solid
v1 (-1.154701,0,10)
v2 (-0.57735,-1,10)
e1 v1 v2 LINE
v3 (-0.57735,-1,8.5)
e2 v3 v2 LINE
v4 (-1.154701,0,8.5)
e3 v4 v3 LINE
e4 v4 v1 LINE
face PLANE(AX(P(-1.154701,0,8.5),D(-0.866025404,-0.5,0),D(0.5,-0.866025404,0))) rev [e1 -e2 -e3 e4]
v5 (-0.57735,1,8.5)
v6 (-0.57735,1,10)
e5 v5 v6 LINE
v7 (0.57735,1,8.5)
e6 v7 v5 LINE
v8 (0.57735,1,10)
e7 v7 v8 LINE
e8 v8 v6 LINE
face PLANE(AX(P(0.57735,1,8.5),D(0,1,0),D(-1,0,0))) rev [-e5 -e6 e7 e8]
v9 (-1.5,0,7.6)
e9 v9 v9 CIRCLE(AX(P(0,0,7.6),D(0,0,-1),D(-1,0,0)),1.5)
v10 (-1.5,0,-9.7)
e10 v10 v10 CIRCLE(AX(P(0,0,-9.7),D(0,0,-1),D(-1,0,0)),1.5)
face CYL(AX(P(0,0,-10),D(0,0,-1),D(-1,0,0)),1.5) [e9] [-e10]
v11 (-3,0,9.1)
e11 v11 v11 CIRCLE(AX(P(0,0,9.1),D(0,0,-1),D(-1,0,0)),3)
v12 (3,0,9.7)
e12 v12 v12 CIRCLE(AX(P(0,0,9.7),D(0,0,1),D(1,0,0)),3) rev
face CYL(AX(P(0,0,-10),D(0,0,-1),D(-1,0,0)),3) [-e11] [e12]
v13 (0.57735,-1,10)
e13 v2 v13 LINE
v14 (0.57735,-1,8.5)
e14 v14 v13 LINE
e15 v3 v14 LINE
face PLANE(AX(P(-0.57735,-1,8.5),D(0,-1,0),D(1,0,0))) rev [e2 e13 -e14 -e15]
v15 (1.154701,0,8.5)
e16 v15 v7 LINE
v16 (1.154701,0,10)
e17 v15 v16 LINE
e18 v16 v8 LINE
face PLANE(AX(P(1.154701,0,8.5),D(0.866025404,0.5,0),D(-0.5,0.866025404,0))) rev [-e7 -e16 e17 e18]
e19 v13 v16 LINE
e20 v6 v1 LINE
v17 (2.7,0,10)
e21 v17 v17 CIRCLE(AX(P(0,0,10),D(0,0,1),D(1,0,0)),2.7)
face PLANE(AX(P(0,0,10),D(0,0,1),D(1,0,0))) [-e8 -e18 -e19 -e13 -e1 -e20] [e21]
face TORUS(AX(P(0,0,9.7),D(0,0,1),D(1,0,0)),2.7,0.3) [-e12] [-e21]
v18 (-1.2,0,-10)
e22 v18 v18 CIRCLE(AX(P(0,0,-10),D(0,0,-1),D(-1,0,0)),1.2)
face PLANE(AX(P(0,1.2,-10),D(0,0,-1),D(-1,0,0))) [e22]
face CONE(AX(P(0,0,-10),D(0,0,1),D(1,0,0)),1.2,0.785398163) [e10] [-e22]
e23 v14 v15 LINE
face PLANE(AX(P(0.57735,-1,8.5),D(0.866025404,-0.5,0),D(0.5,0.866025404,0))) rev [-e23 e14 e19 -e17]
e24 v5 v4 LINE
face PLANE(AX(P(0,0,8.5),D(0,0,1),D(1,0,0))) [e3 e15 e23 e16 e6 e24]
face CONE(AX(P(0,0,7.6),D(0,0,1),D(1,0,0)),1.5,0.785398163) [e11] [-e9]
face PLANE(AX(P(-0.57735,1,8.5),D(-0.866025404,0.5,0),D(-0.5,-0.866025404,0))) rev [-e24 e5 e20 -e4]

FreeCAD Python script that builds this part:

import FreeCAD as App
import Part
import Sketcher

V = App.Vector
Q = App.Units.Quantity


def edges_at(feature, points):
    """Names of the edges that pass closest to the given points."""
    edges = feature.Shape.Edges
    near = lambda p: min(range(len(edges)), key=lambda i: edges[i].distToShape(Part.Vertex(*p))[0])
    return sorted({f"Edge{near(p) + 1}" for p in points})

doc = App.newDocument("Part")
params = doc.addObject("Spreadsheet::Sheet", "Params")
for row, (alias, value) in enumerate([
    ("sketch1_width", "3 mm"),
    ("sketch1_height", "20 mm"),
    ("sketch1_width2", "1.2 mm"),
    ("sketch1_height2", "17.3 mm"),
    ("revolution_angle", "360 deg"),
    ("pocket1_length", "1.5 mm"),
    ("fillet_radius", "0.3 mm"),
], start=1):
    params.set(f"A{row}", alias)
    params.set(f"B{row}", "=" + value)
    params.setAlias(f"B{row}", alias)

body = doc.addObject("PartDesign::Body", "Body")

# Sketch on YZ plane
sketch1 = body.newObject("Sketcher::SketchObject", "Sketch")
sketch1.AttachmentSupport = (doc.getObject("YZ_Plane"), [""])
sketch1.MapMode = "FlatFace"
sketch1.addGeometry([
    Part.LineSegment(V(3, 10, 0), V(0, 10, 0)),  # 0
    Part.LineSegment(V(0, 10, 0), V(0, -10, 0)),  # 1
    Part.LineSegment(V(0, -10, 0), V(1.2, -10, 0)),  # 2
    Part.LineSegment(V(1.2, -10, 0), V(1.5, -9.7, 0)),  # 3
    Part.LineSegment(V(1.5, -9.7, 0), V(1.5, 7.6, 0)),  # 4
    Part.LineSegment(V(1.5, 7.6, 0), V(3, 9.1, 0)),  # 5
    Part.LineSegment(V(3, 9.1, 0), V(3, 10, 0)),  # 6
], False)
sketch1.addConstraint([
    Sketcher.Constraint("Coincident", 0, 2, 1, 1),
    Sketcher.Constraint("Coincident", 1, 2, 2, 1),
    Sketcher.Constraint("Coincident", 2, 2, 3, 1),
    Sketcher.Constraint("Coincident", 3, 2, 4, 1),
    Sketcher.Constraint("Coincident", 4, 2, 5, 1),
    Sketcher.Constraint("Coincident", 5, 2, 6, 1),
    Sketcher.Constraint("Coincident", 6, 2, 0, 1),
    Sketcher.Constraint("Horizontal", 0),
    Sketcher.Constraint("Vertical", 1),
    Sketcher.Constraint("Horizontal", 2),
    Sketcher.Constraint("Vertical", 4),
    Sketcher.Constraint("Vertical", 6),
    Sketcher.Constraint("Symmetric", 0, 2, 1, 2, -1, 1),
    Sketcher.Constraint("Parallel", 3, 5),
    Sketcher.Constraint("DistanceX", 0, 2, 0, 1, 3.0),
    Sketcher.Constraint("DistanceY", 1, 2, 1, 1, 20.0),
    Sketcher.Constraint("Angle", 3, Q("45 deg")),
    Sketcher.Constraint("DistanceX", 2, 1, 2, 2, 1.2),
    Sketcher.Constraint("DistanceY", 4, 1, 4, 2, 17.3),
    Sketcher.Constraint("DistanceX", -1, 1, 3, 2, 1.5),
])
sketch1.setExpression("Constraints[14]", "Params.sketch1_width")
sketch1.setExpression("Constraints[15]", "Params.sketch1_height")
sketch1.setExpression("Constraints[17]", "Params.sketch1_width2")
sketch1.setExpression("Constraints[18]", "Params.sketch1_height2")
revolution = body.newObject("PartDesign::Revolution", "Revolution")
revolution.Profile = sketch1
revolution.ReferenceAxis = (sketch1, ["V_Axis"])
revolution.setExpression("Angle", "Params.revolution_angle")

# Sketch on XY plane
sketch2 = body.newObject("Sketcher::SketchObject", "Sketch001")
sketch2.AttachmentSupport = (doc.getObject("XY_Plane"), [""])
sketch2.MapMode = "FlatFace"
sketch2.AttachmentOffset = App.Placement(V(0, 0, 10), App.Rotation())
sketch2.addGeometry([
    Part.LineSegment(V(1.2, 0, 0), V(0.6, 1, 0)),  # 0
    Part.LineSegment(V(0.6, 1, 0), V(-0.6, 1, 0)),  # 1
    Part.LineSegment(V(-0.6, 1, 0), V(-1.2, 0, 0)),  # 2
    Part.LineSegment(V(-1.2, 0, 0), V(-0.6, -1, 0)),  # 3
    Part.LineSegment(V(-0.6, -1, 0), V(0.6, -1, 0)),  # 4
    Part.LineSegment(V(0.6, -1, 0), V(1.2, 0, 0)),  # 5
], False)
sketch2.addConstraint([
    Sketcher.Constraint("Coincident", 0, 2, 1, 1),
    Sketcher.Constraint("Coincident", 1, 2, 2, 1),
    Sketcher.Constraint("Coincident", 2, 2, 3, 1),
    Sketcher.Constraint("Coincident", 3, 2, 4, 1),
    Sketcher.Constraint("Coincident", 4, 2, 5, 1),
    Sketcher.Constraint("Coincident", 5, 2, 0, 1),
    Sketcher.Constraint("Horizontal", 1),
    Sketcher.Constraint("Horizontal", 4),
    Sketcher.Constraint("Symmetric", 0, 2, 3, 2, -1, 1),
    Sketcher.Constraint("Symmetric", 2, 2, 5, 2, -1, 1),
    Sketcher.Constraint("PointOnObject", 2, 2, -1),
    Sketcher.Constraint("Parallel", 2, 5),
    Sketcher.Constraint("Vertical", 1, 2, 3, 2),
    Sketcher.Constraint("Angle", 0, Q("120 deg")),
    Sketcher.Constraint("DistanceY", -1, 1, 0, 2, 1.0),
    Sketcher.Constraint("DistanceX", 1, 2, 1, 1, 1.154701),
])
pocket1 = body.newObject("PartDesign::Pocket", "Pocket")
pocket1.Profile = sketch2
pocket1.setExpression("Length", "Params.pocket1_length")
doc.recompute()

fillet = body.newObject("PartDesign::Fillet", "Fillet")
fillet.Base = (pocket1, edges_at(pocket1, [(3, 0, 10)]))
fillet.setExpression("Radius", "Params.fillet_radius")

doc.recompute()
